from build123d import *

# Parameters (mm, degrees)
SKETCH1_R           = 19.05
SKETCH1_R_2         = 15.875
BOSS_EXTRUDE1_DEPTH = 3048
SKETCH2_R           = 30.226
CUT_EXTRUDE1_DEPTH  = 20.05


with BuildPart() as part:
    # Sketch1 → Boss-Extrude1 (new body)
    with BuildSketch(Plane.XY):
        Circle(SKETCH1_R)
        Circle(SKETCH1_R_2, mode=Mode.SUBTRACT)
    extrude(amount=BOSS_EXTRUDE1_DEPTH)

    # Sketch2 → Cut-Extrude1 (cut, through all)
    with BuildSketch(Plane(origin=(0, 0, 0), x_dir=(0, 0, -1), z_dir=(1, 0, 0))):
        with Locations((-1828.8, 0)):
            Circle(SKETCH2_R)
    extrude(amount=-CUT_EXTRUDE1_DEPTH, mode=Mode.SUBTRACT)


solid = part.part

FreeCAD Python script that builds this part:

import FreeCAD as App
import Part
import Sketcher

V = App.Vector
Q = App.Units.Quantity

doc = App.newDocument("Part")
body = doc.addObject("PartDesign::Body", "Body")

sketch1 = body.newObject("Sketcher::SketchObject", "Sketch")
sketch1.AttachmentSupport = (doc.getObject("XY_Plane"), [""])
sketch1.MapMode = "FlatFace"
sketch1.addGeometry(Part.Circle(V(0, 0, 0), V(0, 0, 1), 19.05), False)
sketch1.addGeometry(Part.Circle(V(0, 0, 0), V(0, 0, 1), 15.875), False)
sketch1.addConstraint(Sketcher.Constraint("Coincident", 0, 3, -1, 1))
sketch1.addConstraint(Sketcher.Constraint("Coincident", 1, 3, -1, 1))
sketch1.addConstraint(Sketcher.Constraint("Diameter", 0, Q("1.5 in")))
sketch1.addConstraint(Sketcher.Constraint("Diameter", 1, Q("1.25 in")))
pad1 = body.newObject("PartDesign::Pad", "Pad")
pad1.Profile = sketch1
pad1.Length = Q("120 in")

sketch2 = body.newObject("Sketcher::SketchObject", "Sketch001")
sketch2.AttachmentSupport = (doc.getObject("YZ_Plane"), [""])
sketch2.MapMode = "FlatFace"
sketch2.addGeometry(Part.Circle(V(0, 1828.8, 0), V(0, 0, 1), 30.226), False)
sketch2.addConstraint(Sketcher.Constraint("PointOnObject", 0, 3, -2))
sketch2.addConstraint(Sketcher.Constraint("Diameter", 0, Q("2.38 in")))
sketch2.addConstraint(Sketcher.Constraint("DistanceY", -1, 1, 0, 3, Q("72 in")))
pocket1 = body.newObject("PartDesign::Pocket", "Pocket")
pocket1.Profile = sketch2
pocket1.Type = "ThroughAll"

doc.recompute()
